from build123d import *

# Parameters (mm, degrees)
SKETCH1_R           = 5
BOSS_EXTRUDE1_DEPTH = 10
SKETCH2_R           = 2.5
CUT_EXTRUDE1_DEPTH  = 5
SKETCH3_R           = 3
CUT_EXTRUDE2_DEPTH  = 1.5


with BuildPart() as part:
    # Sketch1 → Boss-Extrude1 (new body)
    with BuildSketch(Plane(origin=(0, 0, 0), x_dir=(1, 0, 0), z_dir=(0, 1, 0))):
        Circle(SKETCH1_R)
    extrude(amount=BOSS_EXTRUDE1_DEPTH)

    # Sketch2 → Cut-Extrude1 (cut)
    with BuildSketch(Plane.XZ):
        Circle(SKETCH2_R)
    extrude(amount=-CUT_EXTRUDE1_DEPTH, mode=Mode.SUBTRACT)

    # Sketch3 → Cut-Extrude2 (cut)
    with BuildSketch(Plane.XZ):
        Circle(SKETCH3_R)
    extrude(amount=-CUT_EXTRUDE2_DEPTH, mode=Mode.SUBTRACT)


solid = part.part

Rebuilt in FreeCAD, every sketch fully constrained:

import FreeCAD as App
import Part
import Sketcher

doc = App.newDocument("Part")
params = doc.addObject("Spreadsheet::Sheet", "Params")
for row, (alias, value) in enumerate([
    ("sketch1_diameter", "10 mm"),
    ("pad1_length", "10 mm"),
    ("sketch2_diameter", "5 mm"),
    ("pocket1_length", "5 mm"),
    ("sketch3_diameter", "6 mm"),
    ("pocket2_length", "1.5 mm"),
], start=1):
    params.set(f"A{row}", alias)
    params.set(f"B{row}", "=" + value)
    params.setAlias(f"B{row}", alias)

body = doc.addObject("PartDesign::Body", "Body")

# Sketch on XZ plane
sketch1 = body.newObject("Sketcher::SketchObject", "Sketch")
sketch1.AttachmentSupport = (doc.getObject("XZ_Plane"), [""])
sketch1.MapMode = "FlatFace"
sketch1.addGeometry(Part.Circle(App.Vector(0, 0, 0), App.Vector(0, 0, 1), 5), False)
sketch1.addConstraint([
    Sketcher.Constraint("Coincident", 0, 3, -1, 1),
    Sketcher.Constraint("Diameter", 0, 10.0),
])
sketch1.setExpression("Constraints[1]", "Params.sketch1_diameter")
pad1 = body.newObject("PartDesign::Pad", "Pad")
pad1.Profile = sketch1
pad1.setExpression("Length", "Params.pad1_length")
pad1.Reversed = True

# Sketch on XZ plane
sketch2 = body.newObject("Sketcher::SketchObject", "Sketch001")
sketch2.AttachmentSupport = (doc.getObject("XZ_Plane"), [""])
sketch2.MapMode = "FlatFace"
sketch2.addGeometry(Part.Circle(App.Vector(0, 0, 0), App.Vector(0, 0, 1), 2.5), False)
sketch2.addConstraint([
    Sketcher.Constraint("Coincident", 0, 3, -1, 1),
    Sketcher.Constraint("Diameter", 0, 5.0),
])
sketch2.setExpression("Constraints[1]", "Params.sketch2_diameter")
pocket1 = body.newObject("PartDesign::Pocket", "Pocket")
pocket1.Profile = sketch2
pocket1.setExpression("Length", "Params.pocket1_length")

# Sketch on XZ plane
sketch3 = body.newObject("Sketcher::SketchObject", "Sketch002")
sketch3.AttachmentSupport = (doc.getObject("XZ_Plane"), [""])
sketch3.MapMode = "FlatFace"
sketch3.addGeometry(Part.Circle(App.Vector(0, 0, 0), App.Vector(0, 0, 1), 3), False)
sketch3.addConstraint([
    Sketcher.Constraint("Coincident", 0, 3, -1, 1),
    Sketcher.Constraint("Diameter", 0, 6.0),
])
sketch3.setExpression("Constraints[1]", "Params.sketch3_diameter")
pocket2 = body.newObject("PartDesign::Pocket", "Pocket001")
pocket2.Profile = sketch3
pocket2.setExpression("Length", "Params.pocket2_length")

doc.recompute()
